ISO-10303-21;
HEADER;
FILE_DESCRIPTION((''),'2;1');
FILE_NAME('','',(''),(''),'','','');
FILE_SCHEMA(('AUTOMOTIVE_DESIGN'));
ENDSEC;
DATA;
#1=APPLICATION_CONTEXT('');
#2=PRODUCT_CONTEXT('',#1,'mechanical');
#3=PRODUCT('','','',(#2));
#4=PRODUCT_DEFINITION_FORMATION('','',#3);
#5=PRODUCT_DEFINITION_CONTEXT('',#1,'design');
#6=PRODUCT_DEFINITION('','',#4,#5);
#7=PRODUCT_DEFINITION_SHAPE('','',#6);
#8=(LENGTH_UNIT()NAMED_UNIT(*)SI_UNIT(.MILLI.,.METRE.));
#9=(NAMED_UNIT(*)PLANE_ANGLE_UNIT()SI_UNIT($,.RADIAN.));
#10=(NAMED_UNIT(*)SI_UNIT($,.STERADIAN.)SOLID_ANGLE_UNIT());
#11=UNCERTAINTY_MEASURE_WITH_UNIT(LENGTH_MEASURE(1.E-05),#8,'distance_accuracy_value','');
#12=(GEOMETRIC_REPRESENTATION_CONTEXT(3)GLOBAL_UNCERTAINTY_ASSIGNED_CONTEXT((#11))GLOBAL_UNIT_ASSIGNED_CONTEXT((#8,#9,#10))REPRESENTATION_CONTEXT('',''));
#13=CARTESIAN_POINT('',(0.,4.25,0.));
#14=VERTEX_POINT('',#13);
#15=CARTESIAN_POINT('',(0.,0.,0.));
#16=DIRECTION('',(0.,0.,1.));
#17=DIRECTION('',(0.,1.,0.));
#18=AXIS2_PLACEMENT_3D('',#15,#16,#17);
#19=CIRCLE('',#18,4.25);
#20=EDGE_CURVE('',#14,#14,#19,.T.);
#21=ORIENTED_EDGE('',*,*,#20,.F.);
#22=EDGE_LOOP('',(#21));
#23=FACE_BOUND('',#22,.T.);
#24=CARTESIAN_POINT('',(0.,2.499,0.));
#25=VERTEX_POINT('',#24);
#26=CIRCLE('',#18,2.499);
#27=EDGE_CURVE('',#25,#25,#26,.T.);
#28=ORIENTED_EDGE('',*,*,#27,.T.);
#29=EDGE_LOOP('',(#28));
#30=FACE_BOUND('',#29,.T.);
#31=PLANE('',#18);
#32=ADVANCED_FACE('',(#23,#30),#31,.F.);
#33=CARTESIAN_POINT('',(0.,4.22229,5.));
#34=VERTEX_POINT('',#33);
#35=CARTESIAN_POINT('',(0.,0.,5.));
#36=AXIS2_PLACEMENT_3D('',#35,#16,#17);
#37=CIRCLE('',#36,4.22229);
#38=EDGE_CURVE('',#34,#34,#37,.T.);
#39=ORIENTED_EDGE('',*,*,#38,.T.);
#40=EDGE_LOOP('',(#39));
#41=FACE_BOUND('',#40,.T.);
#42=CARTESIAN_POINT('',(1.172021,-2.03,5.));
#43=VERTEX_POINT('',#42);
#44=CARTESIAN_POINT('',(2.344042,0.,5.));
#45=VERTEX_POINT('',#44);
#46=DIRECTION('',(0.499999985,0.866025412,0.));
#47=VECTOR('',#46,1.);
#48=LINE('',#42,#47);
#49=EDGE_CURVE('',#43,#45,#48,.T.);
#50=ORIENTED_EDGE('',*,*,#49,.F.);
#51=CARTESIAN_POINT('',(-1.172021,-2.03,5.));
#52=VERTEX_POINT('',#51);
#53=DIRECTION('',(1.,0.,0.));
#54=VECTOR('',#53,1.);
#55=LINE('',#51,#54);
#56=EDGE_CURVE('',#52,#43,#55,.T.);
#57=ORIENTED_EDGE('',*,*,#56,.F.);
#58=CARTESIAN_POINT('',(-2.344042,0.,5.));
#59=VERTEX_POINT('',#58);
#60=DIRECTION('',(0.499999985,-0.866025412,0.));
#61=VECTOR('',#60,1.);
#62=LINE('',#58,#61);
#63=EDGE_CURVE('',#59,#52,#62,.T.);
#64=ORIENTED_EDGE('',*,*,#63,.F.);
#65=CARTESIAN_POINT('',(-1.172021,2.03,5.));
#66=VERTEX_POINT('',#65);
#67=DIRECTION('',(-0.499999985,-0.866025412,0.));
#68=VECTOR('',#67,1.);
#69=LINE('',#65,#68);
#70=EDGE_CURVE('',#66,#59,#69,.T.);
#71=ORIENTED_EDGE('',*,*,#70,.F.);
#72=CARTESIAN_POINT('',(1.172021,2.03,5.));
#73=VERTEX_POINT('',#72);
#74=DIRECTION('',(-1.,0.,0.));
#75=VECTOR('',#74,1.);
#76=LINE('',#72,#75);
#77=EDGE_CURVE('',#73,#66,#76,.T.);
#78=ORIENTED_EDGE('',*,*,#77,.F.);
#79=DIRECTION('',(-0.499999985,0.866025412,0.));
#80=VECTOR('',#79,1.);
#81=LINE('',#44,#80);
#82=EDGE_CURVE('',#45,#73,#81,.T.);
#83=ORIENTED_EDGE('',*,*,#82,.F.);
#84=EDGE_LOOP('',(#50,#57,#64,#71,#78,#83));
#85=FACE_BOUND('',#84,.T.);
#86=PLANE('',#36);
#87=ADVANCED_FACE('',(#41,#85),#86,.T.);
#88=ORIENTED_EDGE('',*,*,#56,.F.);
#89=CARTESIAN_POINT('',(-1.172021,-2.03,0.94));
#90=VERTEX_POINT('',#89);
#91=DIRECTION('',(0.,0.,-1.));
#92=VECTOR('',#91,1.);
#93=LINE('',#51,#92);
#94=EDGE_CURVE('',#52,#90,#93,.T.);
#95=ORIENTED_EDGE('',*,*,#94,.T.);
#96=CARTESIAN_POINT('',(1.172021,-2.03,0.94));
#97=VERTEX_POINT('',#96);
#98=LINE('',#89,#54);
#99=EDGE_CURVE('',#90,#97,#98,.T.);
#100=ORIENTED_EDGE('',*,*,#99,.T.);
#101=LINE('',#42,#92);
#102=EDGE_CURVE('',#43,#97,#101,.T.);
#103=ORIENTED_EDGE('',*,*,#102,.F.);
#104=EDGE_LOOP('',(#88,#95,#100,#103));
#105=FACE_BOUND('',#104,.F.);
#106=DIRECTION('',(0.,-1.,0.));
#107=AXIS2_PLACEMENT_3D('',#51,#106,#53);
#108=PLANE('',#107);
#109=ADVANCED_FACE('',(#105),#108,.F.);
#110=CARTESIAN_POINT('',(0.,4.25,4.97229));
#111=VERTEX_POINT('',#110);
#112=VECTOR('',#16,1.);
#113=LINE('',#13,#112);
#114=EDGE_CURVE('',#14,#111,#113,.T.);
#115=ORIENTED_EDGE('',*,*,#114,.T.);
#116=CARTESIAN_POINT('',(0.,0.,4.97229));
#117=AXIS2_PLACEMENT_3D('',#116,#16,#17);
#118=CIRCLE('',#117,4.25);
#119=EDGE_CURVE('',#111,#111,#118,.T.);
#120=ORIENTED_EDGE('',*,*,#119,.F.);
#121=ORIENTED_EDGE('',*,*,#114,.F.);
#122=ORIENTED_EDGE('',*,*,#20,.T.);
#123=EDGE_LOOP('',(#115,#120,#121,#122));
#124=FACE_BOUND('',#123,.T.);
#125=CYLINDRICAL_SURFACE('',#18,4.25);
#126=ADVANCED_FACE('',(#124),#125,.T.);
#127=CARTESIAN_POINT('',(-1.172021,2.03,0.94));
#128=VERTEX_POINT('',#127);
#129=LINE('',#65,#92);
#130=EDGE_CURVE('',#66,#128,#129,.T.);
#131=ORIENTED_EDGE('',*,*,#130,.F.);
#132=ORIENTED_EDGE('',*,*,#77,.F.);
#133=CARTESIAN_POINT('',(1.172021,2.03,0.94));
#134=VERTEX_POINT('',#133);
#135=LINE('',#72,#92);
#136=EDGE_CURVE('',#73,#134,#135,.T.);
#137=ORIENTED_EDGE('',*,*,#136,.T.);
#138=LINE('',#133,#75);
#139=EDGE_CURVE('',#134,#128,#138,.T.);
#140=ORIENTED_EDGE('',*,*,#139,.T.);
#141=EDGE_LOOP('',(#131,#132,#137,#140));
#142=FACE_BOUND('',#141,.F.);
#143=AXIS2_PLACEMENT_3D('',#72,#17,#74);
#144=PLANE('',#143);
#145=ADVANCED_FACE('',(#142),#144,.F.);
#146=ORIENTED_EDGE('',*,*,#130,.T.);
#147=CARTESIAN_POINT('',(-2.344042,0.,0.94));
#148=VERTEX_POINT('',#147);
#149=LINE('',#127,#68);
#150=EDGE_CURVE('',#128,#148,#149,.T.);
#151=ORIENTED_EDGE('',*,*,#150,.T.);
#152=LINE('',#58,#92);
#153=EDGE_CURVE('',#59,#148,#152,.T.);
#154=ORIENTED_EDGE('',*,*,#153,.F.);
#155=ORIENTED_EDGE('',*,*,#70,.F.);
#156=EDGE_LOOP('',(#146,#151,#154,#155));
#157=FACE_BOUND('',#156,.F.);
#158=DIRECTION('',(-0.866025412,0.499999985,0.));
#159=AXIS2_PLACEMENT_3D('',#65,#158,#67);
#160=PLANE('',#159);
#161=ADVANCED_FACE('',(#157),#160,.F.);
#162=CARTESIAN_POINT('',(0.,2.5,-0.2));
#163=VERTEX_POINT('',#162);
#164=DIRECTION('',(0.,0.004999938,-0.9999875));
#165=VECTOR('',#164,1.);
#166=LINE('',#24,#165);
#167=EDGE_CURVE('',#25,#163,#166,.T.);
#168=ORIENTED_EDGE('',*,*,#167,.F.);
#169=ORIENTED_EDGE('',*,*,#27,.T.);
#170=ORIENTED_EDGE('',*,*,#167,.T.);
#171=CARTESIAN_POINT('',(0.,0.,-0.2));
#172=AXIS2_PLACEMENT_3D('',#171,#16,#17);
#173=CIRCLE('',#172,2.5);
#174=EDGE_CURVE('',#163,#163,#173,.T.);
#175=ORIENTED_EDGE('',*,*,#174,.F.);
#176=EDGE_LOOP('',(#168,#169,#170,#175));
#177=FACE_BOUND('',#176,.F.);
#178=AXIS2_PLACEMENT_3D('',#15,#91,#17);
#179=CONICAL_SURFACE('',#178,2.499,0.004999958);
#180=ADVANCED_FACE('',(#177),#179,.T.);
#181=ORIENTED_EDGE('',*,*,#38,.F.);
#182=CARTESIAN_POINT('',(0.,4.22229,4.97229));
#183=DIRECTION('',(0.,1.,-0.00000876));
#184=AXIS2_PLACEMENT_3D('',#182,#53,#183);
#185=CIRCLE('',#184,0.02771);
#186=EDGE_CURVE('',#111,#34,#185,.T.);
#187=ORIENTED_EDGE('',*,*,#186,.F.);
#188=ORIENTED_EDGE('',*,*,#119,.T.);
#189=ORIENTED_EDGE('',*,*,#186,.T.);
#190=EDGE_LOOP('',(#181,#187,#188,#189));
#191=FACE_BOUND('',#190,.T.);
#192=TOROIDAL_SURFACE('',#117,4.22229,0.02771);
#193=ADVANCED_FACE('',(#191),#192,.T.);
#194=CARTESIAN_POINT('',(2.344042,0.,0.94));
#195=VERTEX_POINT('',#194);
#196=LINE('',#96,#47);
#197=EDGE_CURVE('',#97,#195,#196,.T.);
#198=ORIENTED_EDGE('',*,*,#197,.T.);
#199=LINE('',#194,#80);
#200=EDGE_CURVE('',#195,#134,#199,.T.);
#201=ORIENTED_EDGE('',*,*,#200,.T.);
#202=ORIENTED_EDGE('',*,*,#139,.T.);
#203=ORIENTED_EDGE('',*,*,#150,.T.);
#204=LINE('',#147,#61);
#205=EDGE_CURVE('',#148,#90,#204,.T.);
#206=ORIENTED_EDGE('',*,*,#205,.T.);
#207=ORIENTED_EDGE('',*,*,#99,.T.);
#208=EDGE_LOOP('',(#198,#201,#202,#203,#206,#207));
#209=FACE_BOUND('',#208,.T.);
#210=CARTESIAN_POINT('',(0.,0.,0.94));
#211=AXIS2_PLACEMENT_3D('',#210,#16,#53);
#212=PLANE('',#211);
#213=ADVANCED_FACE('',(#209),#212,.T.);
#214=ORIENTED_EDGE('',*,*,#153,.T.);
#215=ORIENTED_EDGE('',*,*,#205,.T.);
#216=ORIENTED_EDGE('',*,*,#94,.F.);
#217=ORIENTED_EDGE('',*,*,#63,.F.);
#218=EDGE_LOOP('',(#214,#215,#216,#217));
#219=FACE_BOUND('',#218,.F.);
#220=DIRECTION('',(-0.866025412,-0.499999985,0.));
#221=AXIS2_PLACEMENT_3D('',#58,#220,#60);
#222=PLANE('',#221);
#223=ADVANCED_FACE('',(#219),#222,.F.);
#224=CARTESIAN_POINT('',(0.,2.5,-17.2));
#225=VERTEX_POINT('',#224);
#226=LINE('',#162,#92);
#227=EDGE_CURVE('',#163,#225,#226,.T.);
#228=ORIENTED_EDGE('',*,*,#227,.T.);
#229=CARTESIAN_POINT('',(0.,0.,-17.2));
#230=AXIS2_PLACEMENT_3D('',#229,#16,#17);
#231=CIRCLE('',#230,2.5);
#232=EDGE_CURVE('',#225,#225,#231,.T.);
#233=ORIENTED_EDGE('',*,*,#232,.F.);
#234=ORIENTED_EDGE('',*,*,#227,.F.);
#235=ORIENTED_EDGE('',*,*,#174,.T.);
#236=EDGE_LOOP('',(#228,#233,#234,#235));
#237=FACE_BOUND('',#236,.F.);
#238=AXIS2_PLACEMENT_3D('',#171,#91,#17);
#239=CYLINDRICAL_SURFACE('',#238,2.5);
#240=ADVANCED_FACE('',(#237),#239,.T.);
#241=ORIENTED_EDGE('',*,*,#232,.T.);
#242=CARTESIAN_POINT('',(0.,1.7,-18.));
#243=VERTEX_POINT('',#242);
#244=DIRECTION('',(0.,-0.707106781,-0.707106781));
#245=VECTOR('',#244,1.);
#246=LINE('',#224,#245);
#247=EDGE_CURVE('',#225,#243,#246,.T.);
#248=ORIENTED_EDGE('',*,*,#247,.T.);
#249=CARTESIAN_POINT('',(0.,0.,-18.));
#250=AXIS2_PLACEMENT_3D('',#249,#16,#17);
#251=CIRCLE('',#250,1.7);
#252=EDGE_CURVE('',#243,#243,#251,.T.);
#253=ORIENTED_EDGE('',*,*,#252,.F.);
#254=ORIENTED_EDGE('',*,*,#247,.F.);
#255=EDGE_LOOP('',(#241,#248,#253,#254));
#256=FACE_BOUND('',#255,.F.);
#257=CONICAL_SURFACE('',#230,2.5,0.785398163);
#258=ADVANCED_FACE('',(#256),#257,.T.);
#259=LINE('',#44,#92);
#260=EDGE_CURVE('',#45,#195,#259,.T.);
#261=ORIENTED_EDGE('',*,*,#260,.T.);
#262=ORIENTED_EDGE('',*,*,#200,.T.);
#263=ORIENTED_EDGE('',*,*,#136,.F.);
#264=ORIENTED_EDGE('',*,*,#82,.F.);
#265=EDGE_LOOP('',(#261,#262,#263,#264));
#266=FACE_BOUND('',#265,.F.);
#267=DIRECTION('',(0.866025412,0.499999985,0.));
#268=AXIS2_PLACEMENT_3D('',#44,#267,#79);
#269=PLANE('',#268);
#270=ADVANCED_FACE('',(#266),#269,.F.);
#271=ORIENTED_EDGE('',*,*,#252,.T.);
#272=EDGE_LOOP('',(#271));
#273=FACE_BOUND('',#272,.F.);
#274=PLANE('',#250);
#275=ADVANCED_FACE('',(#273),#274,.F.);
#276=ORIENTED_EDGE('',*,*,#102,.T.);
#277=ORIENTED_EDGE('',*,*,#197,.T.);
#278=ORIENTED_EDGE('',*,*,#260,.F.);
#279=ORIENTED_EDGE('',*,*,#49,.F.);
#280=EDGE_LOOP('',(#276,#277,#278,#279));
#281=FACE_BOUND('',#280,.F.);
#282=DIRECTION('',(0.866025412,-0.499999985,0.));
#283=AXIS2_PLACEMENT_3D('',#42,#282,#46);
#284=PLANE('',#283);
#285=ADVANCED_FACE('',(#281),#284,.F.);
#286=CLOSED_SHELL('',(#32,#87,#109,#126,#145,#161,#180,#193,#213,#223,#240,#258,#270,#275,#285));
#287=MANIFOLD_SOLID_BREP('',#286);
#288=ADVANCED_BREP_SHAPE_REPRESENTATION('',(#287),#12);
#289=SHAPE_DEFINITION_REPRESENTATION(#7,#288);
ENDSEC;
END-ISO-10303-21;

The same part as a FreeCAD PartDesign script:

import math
import FreeCAD as App
import Part
import Sketcher
Q = App.Units.Quantity

doc = App.newDocument("Part")
body = doc.addObject("PartDesign::Body", "Body")

sketch1 = body.newObject("Sketcher::SketchObject", "Sketch")
sketch1.AttachmentSupport = (doc.getObject("YZ_Plane"), [""])
sketch1.MapMode = "FlatFace"
sketch1.addGeometry(Part.LineSegment(App.Vector(2.499, 0, 0), App.Vector(4.25, 0, 0)), False)
sketch1.addGeometry(Part.LineSegment(App.Vector(4.25, 0, 0), App.Vector(4.25, 4.972, 0)), False)
sketch1.addGeometry(Part.ArcOfCircle(Part.Circle(App.Vector(4.222, 4.972, 0), App.Vector(0, 0, 1), 0.028), math.radians(0), math.radians(90)), False)
sketch1.addGeometry(Part.LineSegment(App.Vector(4.222, 5, 0), App.Vector(0, 5, 0)), False)
sketch1.addGeometry(Part.LineSegment(App.Vector(0, 5, 0), App.Vector(0, -18, 0)), False)
sketch1.addGeometry(Part.LineSegment(App.Vector(0, -18, 0), App.Vector(1.7, -18, 0)), False)
sketch1.addGeometry(Part.LineSegment(App.Vector(1.7, -18, 0), App.Vector(2.5, -17.2, 0)), False)
sketch1.addGeometry(Part.LineSegment(App.Vector(2.5, -17.2, 0), App.Vector(2.5, -0.2, 0)), False)
sketch1.addGeometry(Part.LineSegment(App.Vector(2.5, -0.2, 0), App.Vector(2.499, 0, 0)), False)
sketch1.addConstraint(Sketcher.Constraint("Coincident", 0, 2, 1, 1))
sketch1.addConstraint(Sketcher.Constraint("Coincident", 1, 2, 2, 1))
sketch1.addConstraint(Sketcher.Constraint("Coincident", 2, 2, 3, 1))
sketch1.addConstraint(Sketcher.Constraint("Coincident", 3, 2, 4, 1))
sketch1.addConstraint(Sketcher.Constraint("Coincident", 4, 2, 5, 1))
sketch1.addConstraint(Sketcher.Constraint("Coincident", 5, 2, 6, 1))
sketch1.addConstraint(Sketcher.Constraint("Coincident", 6, 2, 7, 1))
sketch1.addConstraint(Sketcher.Constraint("Coincident", 7, 2, 8, 1))
sketch1.addConstraint(Sketcher.Constraint("Coincident", 8, 2, 0, 1))
sketch1.addConstraint(Sketcher.Constraint("Horizontal", 0))
sketch1.addConstraint(Sketcher.Constraint("Vertical", 1))
sketch1.addConstraint(Sketcher.Constraint("Horizontal", 3))
sketch1.addConstraint(Sketcher.Constraint("Vertical", 4))
sketch1.addConstraint(Sketcher.Constraint("Horizontal", 5))
sketch1.addConstraint(Sketcher.Constraint("Vertical", 7))
sketch1.addConstraint(Sketcher.Constraint("PointOnObject", 0, 2, -1))
sketch1.addConstraint(Sketcher.Constraint("PointOnObject", 3, 2, -2))
sketch1.addConstraint(Sketcher.Constraint("Horizontal", 2, 3, 1, 2))
sketch1.addConstraint(Sketcher.Constraint("DistanceY", 4, 2, 4, 1, 23.0))
sketch1.addConstraint(Sketcher.Constraint("DistanceY", 7, 1, 7, 2, 17.0))
sketch1.addConstraint(Sketcher.Constraint("Angle", 6, Q("45 deg")))
sketch1.addConstraint(Sketcher.Constraint("DistanceX", 5, 1, 5, 2, 1.7))
sketch1.addConstraint(Sketcher.Constraint("DistanceY", -1, 1, 2, 2, 5.0))
sketch1.addConstraint(Sketcher.Constraint("DistanceX", -1, 1, 6, 2, 2.5))
sketch1.addConstraint(Sketcher.Constraint("DistanceX", 0, 1, 0, 2, 1.751))
sketch1.addConstraint(Sketcher.Constraint("DistanceX", -1, 1, 0, 2, 4.25))
sketch1.addConstraint(Sketcher.Constraint("Radius", 2, 0.02771))
sketch1.addConstraint(Sketcher.Constraint("DistanceX", 3, 2, 3, 1, 4.22229))
revolution = body.newObject("PartDesign::Revolution", "Revolution")
revolution.Profile = sketch1
revolution.ReferenceAxis = (sketch1, ["V_Axis"])
revolution.Angle = 360

sketch2 = body.newObject("Sketcher::SketchObject", "Sketch001")
sketch2.AttachmentSupport = (doc.getObject("XY_Plane"), [""])
sketch2.MapMode = "FlatFace"
sketch2.AttachmentOffset = App.Placement(App.Vector(0, 0, 5), App.Rotation())
sketch2.addGeometry(Part.LineSegment(App.Vector(2.3, 0, 0), App.Vector(1.2, 2, 0)), False)
sketch2.addGeometry(Part.LineSegment(App.Vector(1.2, 2, 0), App.Vector(-1.2, 2, 0)), False)
sketch2.addGeometry(Part.LineSegment(App.Vector(-1.2, 2, 0), App.Vector(-2.3, 0, 0)), False)
sketch2.addGeometry(Part.LineSegment(App.Vector(-2.3, 0, 0), App.Vector(-1.2, -2, 0)), False)
sketch2.addGeometry(Part.LineSegment(App.Vector(-1.2, -2, 0), App.Vector(1.2, -2, 0)), False)
sketch2.addGeometry(Part.LineSegment(App.Vector(1.2, -2, 0), App.Vector(2.3, 0, 0)), False)
sketch2.addConstraint(Sketcher.Constraint("Coincident", 0, 2, 1, 1))
sketch2.addConstraint(Sketcher.Constraint("Coincident", 1, 2, 2, 1))
sketch2.addConstraint(Sketcher.Constraint("Coincident", 2, 2, 3, 1))
sketch2.addConstraint(Sketcher.Constraint("Coincident", 3, 2, 4, 1))
sketch2.addConstraint(Sketcher.Constraint("Coincident", 4, 2, 5, 1))
sketch2.addConstraint(Sketcher.Constraint("Coincident", 5, 2, 0, 1))
sketch2.addConstraint(Sketcher.Constraint("Horizontal", 1))
sketch2.addConstraint(Sketcher.Constraint("Horizontal", 4))
sketch2.addConstraint(Sketcher.Constraint("Symmetric", 0, 2, 3, 2, -1, 1))
sketch2.addConstraint(Sketcher.Constraint("Symmetric", 2, 2, 5, 2, -1, 1))
sketch2.addConstraint(Sketcher.Constraint("PointOnObject", 2, 2, -1))
sketch2.addConstraint(Sketcher.Constraint("Parallel", 2, 5))
sketch2.addConstraint(Sketcher.Constraint("Vertical", 1, 2, 3, 2))
sketch2.addConstraint(Sketcher.Constraint("Angle", 0, Q("119.999999 deg")))
sketch2.addConstraint(Sketcher.Constraint("DistanceY", -1, 1, 0, 2, 2.03))
sketch2.addConstraint(Sketcher.Constraint("DistanceX", 1, 2, 1, 1, 2.344042))
pocket1 = body.newObject("PartDesign::Pocket", "Pocket")
pocket1.Profile = sketch2
pocket1.Length = 4.06

doc.recompute()
